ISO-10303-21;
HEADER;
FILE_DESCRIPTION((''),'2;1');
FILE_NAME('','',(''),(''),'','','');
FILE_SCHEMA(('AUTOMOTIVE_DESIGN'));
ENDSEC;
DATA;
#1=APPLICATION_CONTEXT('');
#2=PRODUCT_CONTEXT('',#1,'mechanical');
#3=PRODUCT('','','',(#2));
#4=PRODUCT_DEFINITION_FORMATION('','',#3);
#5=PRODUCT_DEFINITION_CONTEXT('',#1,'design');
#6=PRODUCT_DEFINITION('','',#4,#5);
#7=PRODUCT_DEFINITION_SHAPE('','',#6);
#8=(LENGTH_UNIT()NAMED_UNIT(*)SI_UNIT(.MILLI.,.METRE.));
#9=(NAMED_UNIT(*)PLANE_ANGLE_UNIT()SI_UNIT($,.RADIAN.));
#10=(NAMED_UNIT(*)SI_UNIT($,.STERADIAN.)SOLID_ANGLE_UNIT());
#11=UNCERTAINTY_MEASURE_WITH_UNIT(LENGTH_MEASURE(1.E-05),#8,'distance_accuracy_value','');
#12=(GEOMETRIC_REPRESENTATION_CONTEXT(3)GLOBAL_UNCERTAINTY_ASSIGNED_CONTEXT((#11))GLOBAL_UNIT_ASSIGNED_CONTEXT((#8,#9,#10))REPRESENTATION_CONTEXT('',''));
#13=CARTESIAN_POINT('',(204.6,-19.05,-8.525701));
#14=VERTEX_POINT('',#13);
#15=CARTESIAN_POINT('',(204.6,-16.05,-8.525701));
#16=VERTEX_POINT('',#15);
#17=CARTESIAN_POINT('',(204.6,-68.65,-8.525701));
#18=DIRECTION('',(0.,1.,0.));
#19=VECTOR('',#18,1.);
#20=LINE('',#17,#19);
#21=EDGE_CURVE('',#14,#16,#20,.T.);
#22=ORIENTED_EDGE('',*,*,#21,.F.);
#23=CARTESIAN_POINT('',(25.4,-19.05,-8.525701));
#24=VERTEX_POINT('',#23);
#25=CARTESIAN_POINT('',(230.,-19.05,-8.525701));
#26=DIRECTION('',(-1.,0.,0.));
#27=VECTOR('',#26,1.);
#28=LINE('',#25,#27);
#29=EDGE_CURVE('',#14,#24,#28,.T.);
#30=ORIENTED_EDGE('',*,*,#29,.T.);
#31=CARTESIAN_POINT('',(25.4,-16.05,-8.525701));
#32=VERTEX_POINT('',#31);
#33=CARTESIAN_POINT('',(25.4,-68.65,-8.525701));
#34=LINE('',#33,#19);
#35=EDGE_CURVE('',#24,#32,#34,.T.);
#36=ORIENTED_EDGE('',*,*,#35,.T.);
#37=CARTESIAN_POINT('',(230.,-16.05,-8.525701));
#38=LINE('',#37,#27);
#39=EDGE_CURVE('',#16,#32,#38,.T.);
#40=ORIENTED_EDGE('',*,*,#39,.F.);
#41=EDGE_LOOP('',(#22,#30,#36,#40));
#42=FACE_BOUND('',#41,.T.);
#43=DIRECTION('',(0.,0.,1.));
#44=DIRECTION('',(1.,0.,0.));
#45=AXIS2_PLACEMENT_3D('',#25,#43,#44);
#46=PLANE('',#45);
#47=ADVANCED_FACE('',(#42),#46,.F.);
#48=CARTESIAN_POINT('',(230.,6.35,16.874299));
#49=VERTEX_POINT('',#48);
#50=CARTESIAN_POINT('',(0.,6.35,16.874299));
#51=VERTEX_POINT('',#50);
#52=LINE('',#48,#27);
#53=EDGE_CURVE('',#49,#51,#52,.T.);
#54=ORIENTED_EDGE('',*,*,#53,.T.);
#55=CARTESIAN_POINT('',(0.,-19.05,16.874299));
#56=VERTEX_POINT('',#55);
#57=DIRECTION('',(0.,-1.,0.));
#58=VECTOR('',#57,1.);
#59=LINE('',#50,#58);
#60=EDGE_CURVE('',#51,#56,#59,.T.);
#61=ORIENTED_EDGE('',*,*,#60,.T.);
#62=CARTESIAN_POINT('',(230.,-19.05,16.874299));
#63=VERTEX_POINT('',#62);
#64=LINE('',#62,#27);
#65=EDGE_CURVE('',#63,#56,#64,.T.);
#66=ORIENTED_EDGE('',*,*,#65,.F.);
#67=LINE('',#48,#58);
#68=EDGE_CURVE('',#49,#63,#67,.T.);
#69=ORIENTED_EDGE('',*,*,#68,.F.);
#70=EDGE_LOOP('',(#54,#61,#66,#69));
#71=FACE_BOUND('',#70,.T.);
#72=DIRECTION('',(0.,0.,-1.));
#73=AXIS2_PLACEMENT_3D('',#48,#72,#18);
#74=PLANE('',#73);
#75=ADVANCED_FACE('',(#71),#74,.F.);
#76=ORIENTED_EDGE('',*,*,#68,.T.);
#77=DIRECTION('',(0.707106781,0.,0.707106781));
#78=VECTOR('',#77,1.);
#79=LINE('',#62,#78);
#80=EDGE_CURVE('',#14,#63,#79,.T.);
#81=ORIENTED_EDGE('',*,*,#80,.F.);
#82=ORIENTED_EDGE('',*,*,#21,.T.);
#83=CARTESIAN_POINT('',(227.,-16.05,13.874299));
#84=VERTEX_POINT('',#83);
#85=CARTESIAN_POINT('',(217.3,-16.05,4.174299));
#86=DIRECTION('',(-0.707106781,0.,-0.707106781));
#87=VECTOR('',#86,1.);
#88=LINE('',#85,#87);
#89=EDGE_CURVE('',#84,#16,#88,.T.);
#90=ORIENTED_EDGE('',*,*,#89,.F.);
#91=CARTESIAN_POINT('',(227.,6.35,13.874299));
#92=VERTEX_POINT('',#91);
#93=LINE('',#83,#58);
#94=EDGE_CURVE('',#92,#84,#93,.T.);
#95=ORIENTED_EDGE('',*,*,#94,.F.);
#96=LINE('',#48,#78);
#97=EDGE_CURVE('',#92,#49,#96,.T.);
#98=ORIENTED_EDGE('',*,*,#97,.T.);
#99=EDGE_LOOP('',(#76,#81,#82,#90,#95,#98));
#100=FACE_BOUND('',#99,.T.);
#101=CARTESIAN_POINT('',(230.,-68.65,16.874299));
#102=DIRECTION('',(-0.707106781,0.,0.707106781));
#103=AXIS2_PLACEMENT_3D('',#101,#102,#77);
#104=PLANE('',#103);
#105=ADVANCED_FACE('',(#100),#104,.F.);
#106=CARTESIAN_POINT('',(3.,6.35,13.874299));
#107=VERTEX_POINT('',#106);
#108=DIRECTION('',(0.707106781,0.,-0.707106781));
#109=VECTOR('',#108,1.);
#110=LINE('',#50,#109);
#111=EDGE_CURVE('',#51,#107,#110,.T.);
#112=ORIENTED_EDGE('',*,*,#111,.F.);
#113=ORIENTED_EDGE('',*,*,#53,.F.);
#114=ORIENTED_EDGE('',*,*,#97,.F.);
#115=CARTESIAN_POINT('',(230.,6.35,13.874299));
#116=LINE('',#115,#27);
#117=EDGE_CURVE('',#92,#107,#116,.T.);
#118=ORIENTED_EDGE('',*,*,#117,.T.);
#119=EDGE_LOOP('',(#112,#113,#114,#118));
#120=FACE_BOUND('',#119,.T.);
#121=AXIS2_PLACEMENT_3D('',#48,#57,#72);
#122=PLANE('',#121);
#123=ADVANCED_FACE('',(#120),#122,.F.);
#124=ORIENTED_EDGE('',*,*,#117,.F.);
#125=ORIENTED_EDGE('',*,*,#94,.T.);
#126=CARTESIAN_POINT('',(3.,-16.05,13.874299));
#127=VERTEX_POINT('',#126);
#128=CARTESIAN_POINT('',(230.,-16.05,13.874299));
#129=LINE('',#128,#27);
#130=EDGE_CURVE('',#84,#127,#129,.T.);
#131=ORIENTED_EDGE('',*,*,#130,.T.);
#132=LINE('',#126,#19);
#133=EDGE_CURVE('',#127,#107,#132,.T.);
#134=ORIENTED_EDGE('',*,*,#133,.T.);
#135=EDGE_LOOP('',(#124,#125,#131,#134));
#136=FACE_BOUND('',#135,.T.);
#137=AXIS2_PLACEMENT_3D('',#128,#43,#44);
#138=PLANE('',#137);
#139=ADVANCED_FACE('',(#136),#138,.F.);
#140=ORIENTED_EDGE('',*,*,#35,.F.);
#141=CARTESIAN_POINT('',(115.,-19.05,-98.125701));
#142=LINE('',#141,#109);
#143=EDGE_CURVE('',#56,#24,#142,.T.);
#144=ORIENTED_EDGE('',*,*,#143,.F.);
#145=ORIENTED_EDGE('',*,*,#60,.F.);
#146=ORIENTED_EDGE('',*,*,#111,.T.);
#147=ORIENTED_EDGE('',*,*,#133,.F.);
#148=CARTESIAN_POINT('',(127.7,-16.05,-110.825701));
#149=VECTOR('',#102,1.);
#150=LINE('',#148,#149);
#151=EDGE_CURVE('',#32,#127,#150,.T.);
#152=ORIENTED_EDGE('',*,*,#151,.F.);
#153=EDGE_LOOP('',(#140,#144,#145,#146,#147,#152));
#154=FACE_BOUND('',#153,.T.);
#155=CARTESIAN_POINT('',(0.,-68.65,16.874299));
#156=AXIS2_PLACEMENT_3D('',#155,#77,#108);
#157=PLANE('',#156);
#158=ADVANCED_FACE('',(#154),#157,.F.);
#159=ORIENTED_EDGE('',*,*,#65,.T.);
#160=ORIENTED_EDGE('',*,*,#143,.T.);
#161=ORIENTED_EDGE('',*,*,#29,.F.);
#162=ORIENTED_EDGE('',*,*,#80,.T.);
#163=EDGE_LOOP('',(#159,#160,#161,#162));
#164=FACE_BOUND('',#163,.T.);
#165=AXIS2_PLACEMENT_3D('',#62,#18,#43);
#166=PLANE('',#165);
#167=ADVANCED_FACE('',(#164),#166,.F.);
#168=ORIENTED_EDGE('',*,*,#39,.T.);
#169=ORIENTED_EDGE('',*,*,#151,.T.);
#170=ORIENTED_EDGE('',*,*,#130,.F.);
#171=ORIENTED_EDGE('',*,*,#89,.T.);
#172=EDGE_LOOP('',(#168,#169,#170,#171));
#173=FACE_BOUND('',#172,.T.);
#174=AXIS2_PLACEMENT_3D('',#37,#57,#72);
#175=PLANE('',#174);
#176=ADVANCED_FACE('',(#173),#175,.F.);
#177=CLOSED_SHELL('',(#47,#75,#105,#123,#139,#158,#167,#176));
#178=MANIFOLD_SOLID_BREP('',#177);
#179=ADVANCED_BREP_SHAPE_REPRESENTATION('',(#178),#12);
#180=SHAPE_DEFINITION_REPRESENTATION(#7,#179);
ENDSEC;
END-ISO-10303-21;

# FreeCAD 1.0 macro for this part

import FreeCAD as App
import Part
import Sketcher

V = App.Vector

doc = App.newDocument("Part")
body = doc.addObject("PartDesign::Body", "Body")

# Sketch on YZ plane
sketch1 = body.newObject("Sketcher::SketchObject", "Sketch")
sketch1.AttachmentSupport = (doc.getObject("YZ_Plane"), [""])
sketch1.MapMode = "FlatFace"
sketch1.addGeometry([
    Part.LineSegment(V(6.3, 16.9, 0), V(-19.1, 16.9, 0)),  # 0
    Part.LineSegment(V(-19.1, 16.9, 0), V(-19.1, -8.5, 0)),  # 1
    Part.LineSegment(V(-19.1, -8.5, 0), V(-16.1, -8.5, 0)),  # 2
    Part.LineSegment(V(-16.1, -8.5, 0), V(-16.1, 13.9, 0)),  # 3
    Part.LineSegment(V(-16.1, 13.9, 0), V(6.3, 13.9, 0)),  # 4
    Part.LineSegment(V(6.3, 13.9, 0), V(6.3, 16.9, 0)),  # 5
], False)
sketch1.addConstraint([
    Sketcher.Constraint("Coincident", 0, 2, 1, 1),
    Sketcher.Constraint("Coincident", 1, 2, 2, 1),
    Sketcher.Constraint("Coincident", 2, 2, 3, 1),
    Sketcher.Constraint("Coincident", 3, 2, 4, 1),
    Sketcher.Constraint("Coincident", 4, 2, 5, 1),
    Sketcher.Constraint("Coincident", 5, 2, 0, 1),
    Sketcher.Constraint("Horizontal", 0),
    Sketcher.Constraint("Vertical", 1),
    Sketcher.Constraint("Horizontal", 2),
    Sketcher.Constraint("Vertical", 3),
    Sketcher.Constraint("Horizontal", 4),
    Sketcher.Constraint("Vertical", 5),
    Sketcher.Constraint("Equal", 0, 1),
    Sketcher.Constraint("Equal", 4, 3),
    Sketcher.Constraint("DistanceX", 2, 1, 2, 2, 3.0),
    Sketcher.Constraint("DistanceX", 0, 2, 0, 1, 25.4),
    Sketcher.Constraint("DistanceX", 0, 2, -1, 1, 19.05),
    Sketcher.Constraint("DistanceY", -1, 1, 0, 2, 16.874299),
])
pad1 = body.newObject("PartDesign::Pad", "Pad")
pad1.Profile = sketch1
pad1.Length = 230

# Sketch on XZ plane
sketch2 = body.newObject("Sketcher::SketchObject", "Sketch001")
sketch2.AttachmentSupport = (doc.getObject("XZ_Plane"), [""])
sketch2.MapMode = "FlatFace"
sketch2.AttachmentOffset = App.Placement(V(0, 0, -6.35), App.Rotation())
sketch2.addGeometry([
    Part.LineSegment(V(0, 17, 0), V(25, -9, 0)),  # 0
    Part.LineSegment(V(25, -9, 0), V(0, -9, 0)),  # 1
    Part.LineSegment(V(0, -9, 0), V(0, 17, 0)),  # 2
    Part.LineSegment(V(205, -9, 0), V(230, 17, 0)),  # 3
    Part.LineSegment(V(230, 17, 0), V(230, -9, 0)),  # 4
    Part.LineSegment(V(230, -9, 0), V(205, -9, 0)),  # 5
], False)
sketch2.addConstraint([
    Sketcher.Constraint("Coincident", 0, 2, 1, 1),
    Sketcher.Constraint("Coincident", 1, 2, 2, 1),
    Sketcher.Constraint("Coincident", 2, 2, 0, 1),
    Sketcher.Constraint("Coincident", 3, 2, 4, 1),
    Sketcher.Constraint("Coincident", 4, 2, 5, 1),
    Sketcher.Constraint("Coincident", 5, 2, 3, 1),
    Sketcher.Constraint("Horizontal", 1),
    Sketcher.Constraint("Vertical", 2),
    Sketcher.Constraint("Vertical", 4),
    Sketcher.Constraint("Horizontal", 5),
    Sketcher.Constraint("PointOnObject", 1, 2, -2),
    Sketcher.Constraint("Perpendicular", 0, 3),
    Sketcher.Constraint("Horizontal", 2, 2, 3, 2),
    Sketcher.Constraint("Horizontal", 1, 2, 4, 2),
    Sketcher.Constraint("Equal", 1, 5),
    Sketcher.Constraint("DistanceX", 1, 2, 1, 1, 25.4),
    Sketcher.Constraint("DistanceX", -1, 1, 3, 2, 230.0),
    Sketcher.Constraint("DistanceY", 0, 2, -1, 1, 8.525701),
])
pocket1 = body.newObject("PartDesign::Pocket", "Pocket")
pocket1.Profile = sketch2
pocket1.Length = 75
pocket1.Reversed = True

doc.recompute()
